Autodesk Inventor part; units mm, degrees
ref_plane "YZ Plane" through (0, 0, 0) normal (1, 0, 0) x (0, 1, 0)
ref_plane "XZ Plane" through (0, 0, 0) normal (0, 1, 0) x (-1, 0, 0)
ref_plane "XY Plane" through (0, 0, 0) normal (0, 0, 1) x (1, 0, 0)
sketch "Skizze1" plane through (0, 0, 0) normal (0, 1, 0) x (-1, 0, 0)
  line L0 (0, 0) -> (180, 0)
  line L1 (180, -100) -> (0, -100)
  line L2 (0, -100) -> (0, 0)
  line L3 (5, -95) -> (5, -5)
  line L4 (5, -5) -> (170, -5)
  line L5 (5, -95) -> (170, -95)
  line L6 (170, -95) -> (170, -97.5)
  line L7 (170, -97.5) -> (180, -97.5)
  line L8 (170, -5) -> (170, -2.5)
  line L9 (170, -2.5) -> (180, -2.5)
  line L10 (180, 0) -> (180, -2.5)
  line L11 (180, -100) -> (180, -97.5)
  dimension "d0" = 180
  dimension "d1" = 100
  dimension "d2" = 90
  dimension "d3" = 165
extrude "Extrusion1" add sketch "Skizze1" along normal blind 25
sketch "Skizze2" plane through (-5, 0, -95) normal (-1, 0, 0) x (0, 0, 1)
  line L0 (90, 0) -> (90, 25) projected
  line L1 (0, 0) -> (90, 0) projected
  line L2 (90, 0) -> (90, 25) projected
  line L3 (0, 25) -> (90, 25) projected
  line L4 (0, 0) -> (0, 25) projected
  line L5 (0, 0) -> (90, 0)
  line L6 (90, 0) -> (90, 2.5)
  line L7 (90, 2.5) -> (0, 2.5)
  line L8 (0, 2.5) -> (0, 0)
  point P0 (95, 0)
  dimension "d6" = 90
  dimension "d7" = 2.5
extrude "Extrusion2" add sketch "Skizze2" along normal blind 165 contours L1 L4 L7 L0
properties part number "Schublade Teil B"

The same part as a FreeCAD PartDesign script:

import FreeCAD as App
import Part
import Sketcher
from FreeCAD import Vector
Q = App.Units.Quantity

doc = App.newDocument("Part")
body = doc.addObject("PartDesign::Body", "Body")

# Sketch on XZ plane
sketch1 = body.newObject("Sketcher::SketchObject", "Sketch")
sketch1.AttachmentSupport = (doc.getObject("XZ_Plane"), [""])
sketch1.MapMode = "FlatFace"
sketch1.addGeometry(Part.LineSegment(Vector(-180, 0, 0), Vector(0, 0, 0)), False)
sketch1.addGeometry(Part.LineSegment(Vector(0, 0, 0), Vector(0, -100, 0)), False)
sketch1.addGeometry(Part.LineSegment(Vector(0, -100, 0), Vector(-180, -100, 0)), False)
sketch1.addGeometry(Part.LineSegment(Vector(-180, -100, 0), Vector(-180, -97.5, 0)), False)
sketch1.addGeometry(Part.LineSegment(Vector(-180, -97.5, 0), Vector(-170, -97.5, 0)), False)
sketch1.addGeometry(Part.LineSegment(Vector(-170, -97.5, 0), Vector(-170, -95, 0)), False)
sketch1.addGeometry(Part.LineSegment(Vector(-170, -95, 0), Vector(-5, -95, 0)), False)
sketch1.addGeometry(Part.LineSegment(Vector(-5, -95, 0), Vector(-5, -5, 0)), False)
sketch1.addGeometry(Part.LineSegment(Vector(-5, -5, 0), Vector(-170, -5, 0)), False)
sketch1.addGeometry(Part.LineSegment(Vector(-170, -5, 0), Vector(-170, -2.5, 0)), False)
sketch1.addGeometry(Part.LineSegment(Vector(-170, -2.5, 0), Vector(-180, -2.5, 0)), False)
sketch1.addGeometry(Part.LineSegment(Vector(-180, -2.5, 0), Vector(-180, 0, 0)), False)
sketch1.addConstraint(Sketcher.Constraint("Coincident", 0, 2, 1, 1))
sketch1.addConstraint(Sketcher.Constraint("Coincident", 1, 2, 2, 1))
sketch1.addConstraint(Sketcher.Constraint("Coincident", 2, 2, 3, 1))
sketch1.addConstraint(Sketcher.Constraint("Coincident", 3, 2, 4, 1))
sketch1.addConstraint(Sketcher.Constraint("Coincident", 4, 2, 5, 1))
sketch1.addConstraint(Sketcher.Constraint("Coincident", 5, 2, 6, 1))
sketch1.addConstraint(Sketcher.Constraint("Coincident", 6, 2, 7, 1))
sketch1.addConstraint(Sketcher.Constraint("Coincident", 7, 2, 8, 1))
sketch1.addConstraint(Sketcher.Constraint("Coincident", 8, 2, 9, 1))
sketch1.addConstraint(Sketcher.Constraint("Coincident", 9, 2, 10, 1))
sketch1.addConstraint(Sketcher.Constraint("Coincident", 10, 2, 11, 1))
sketch1.addConstraint(Sketcher.Constraint("Coincident", 11, 2, 0, 1))
sketch1.addConstraint(Sketcher.Constraint("Horizontal", 0))
sketch1.addConstraint(Sketcher.Constraint("Vertical", 1))
sketch1.addConstraint(Sketcher.Constraint("Horizontal", 2))
sketch1.addConstraint(Sketcher.Constraint("Vertical", 3))
sketch1.addConstraint(Sketcher.Constraint("Horizontal", 4))
sketch1.addConstraint(Sketcher.Constraint("Vertical", 5))
sketch1.addConstraint(Sketcher.Constraint("Horizontal", 6))
sketch1.addConstraint(Sketcher.Constraint("Vertical", 7))
sketch1.addConstraint(Sketcher.Constraint("Horizontal", 8))
sketch1.addConstraint(Sketcher.Constraint("Vertical", 9))
sketch1.addConstraint(Sketcher.Constraint("Horizontal", 10))
sketch1.addConstraint(Sketcher.Constraint("Vertical", 11))
sketch1.addConstraint(Sketcher.Constraint("Coincident", 0, 2, -1, 1))
sketch1.addConstraint(Sketcher.Constraint("Vertical", 5, 2, 8, 2))
sketch1.addConstraint(Sketcher.Constraint("Vertical", 3, 2, 10, 2))
sketch1.addConstraint(Sketcher.Constraint("Equal", 3, 5))
sketch1.addConstraint(Sketcher.Constraint("Equal", 5, 9))
sketch1.addConstraint(Sketcher.Constraint("Equal", 9, 11))
sketch1.addConstraint(Sketcher.Constraint("DistanceX", 0, 1, 0, 2, Q("180 mm")))
sketch1.addConstraint(Sketcher.Constraint("DistanceX", 6, 1, 6, 2, Q("165 mm")))
sketch1.addConstraint(Sketcher.Constraint("DistanceY", 1, 2, 1, 1, Q("100 mm")))
sketch1.addConstraint(Sketcher.Constraint("DistanceY", 7, 1, 7, 2, Q("90 mm")))
sketch1.addConstraint(Sketcher.Constraint("DistanceX", 4, 1, 4, 2, Q("10 mm")))
pad1 = body.newObject("PartDesign::Pad", "Pad")
pad1.Profile = sketch1
pad1.Length = 25
pad1.Reversed = True

# Sketch on YZ plane
sketch2 = body.newObject("Sketcher::SketchObject", "Sketch001")
sketch2.AttachmentSupport = (doc.getObject("YZ_Plane"), [""])
sketch2.MapMode = "FlatFace"
sketch2.AttachmentOffset = App.Placement(Vector(0, 0, -5), App.Rotation())
sketch2.addGeometry(Part.LineSegment(Vector(0, -95, 0), Vector(0, -5, 0)), False)
sketch2.addGeometry(Part.LineSegment(Vector(0, -5, 0), Vector(2.5, -5, 0)), False)
sketch2.addGeometry(Part.LineSegment(Vector(2.5, -5, 0), Vector(2.5, -95, 0)), False)
sketch2.addGeometry(Part.LineSegment(Vector(2.5, -95, 0), Vector(0, -95, 0)), False)
sketch2.addConstraint(Sketcher.Constraint("Coincident", 0, 2, 1, 1))
sketch2.addConstraint(Sketcher.Constraint("Coincident", 1, 2, 2, 1))
sketch2.addConstraint(Sketcher.Constraint("Coincident", 2, 2, 3, 1))
sketch2.addConstraint(Sketcher.Constraint("Coincident", 3, 2, 0, 1))
sketch2.addConstraint(Sketcher.Constraint("Vertical", 0))
sketch2.addConstraint(Sketcher.Constraint("Horizontal", 1))
sketch2.addConstraint(Sketcher.Constraint("Vertical", 2))
sketch2.addConstraint(Sketcher.Constraint("Horizontal", 3))
sketch2.addConstraint(Sketcher.Constraint("PointOnObject", 0, 2, -2))
sketch2.addConstraint(Sketcher.Constraint("DistanceY", 0, 1, 0, 2, Q("90 mm")))
sketch2.addConstraint(Sketcher.Constraint("DistanceX", 1, 1, 1, 2, Q("2.5 mm")))
sketch2.addConstraint(Sketcher.Constraint("DistanceY", 0, 2, -1, 1, Q("5 mm")))
pad2 = body.newObject("PartDesign::Pad", "Pad001")
pad2.Profile = sketch2
pad2.Length = 165
pad2.Reversed = True

doc.recompute()
